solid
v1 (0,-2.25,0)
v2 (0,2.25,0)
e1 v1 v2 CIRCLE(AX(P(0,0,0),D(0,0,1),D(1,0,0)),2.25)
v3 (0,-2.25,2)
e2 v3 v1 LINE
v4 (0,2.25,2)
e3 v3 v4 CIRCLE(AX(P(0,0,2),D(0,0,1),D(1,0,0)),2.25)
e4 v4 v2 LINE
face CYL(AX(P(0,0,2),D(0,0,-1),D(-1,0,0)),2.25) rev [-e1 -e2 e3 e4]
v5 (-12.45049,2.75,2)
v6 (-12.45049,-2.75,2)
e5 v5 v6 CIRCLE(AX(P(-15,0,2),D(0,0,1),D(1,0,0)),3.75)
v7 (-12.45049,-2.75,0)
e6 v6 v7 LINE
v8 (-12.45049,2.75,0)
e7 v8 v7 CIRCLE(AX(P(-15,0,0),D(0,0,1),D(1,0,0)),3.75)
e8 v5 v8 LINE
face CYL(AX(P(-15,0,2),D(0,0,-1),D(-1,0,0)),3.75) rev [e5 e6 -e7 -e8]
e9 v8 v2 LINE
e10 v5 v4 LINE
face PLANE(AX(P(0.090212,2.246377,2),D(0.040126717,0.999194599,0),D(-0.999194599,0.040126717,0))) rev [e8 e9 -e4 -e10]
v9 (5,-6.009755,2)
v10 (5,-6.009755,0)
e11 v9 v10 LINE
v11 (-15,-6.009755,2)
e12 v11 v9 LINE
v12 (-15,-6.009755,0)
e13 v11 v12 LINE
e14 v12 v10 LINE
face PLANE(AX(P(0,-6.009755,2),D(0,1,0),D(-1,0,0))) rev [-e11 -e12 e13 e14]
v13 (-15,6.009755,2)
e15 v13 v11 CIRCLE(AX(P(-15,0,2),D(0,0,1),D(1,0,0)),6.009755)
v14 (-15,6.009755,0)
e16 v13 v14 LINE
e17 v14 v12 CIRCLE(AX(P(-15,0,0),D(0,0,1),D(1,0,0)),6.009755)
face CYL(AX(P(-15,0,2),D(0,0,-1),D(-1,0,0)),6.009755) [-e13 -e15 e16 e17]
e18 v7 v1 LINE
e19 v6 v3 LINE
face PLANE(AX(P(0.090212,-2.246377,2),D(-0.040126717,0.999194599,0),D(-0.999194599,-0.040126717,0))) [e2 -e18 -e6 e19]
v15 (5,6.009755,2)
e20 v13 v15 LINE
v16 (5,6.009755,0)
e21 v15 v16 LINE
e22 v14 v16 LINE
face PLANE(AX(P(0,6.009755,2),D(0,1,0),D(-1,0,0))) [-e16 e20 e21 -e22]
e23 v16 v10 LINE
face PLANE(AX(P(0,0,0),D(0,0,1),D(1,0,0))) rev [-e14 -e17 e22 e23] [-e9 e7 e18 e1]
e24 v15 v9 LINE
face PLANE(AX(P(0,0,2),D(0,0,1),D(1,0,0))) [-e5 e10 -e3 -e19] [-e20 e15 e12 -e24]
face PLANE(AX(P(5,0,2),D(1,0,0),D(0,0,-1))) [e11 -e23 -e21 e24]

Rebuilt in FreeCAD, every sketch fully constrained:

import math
import FreeCAD as App
import Part
import Sketcher
from FreeCAD import Vector

doc = App.newDocument("Part")
params = doc.addObject("Spreadsheet::Sheet", "Params")
for row, (alias, value) in enumerate([
    ("sketch1_width", "20 mm"),
    ("sketch1_radius", "3.75 mm"),
    ("sketch1_radius2", "2.25 mm"),
    ("pad1_length", "2 mm"),
], start=1):
    params.set(f"A{row}", alias)
    params.set(f"B{row}", "=" + value)
    params.setAlias(f"B{row}", alias)

body = doc.addObject("PartDesign::Body", "Body")

# Sketch on XY plane
sketch1 = body.newObject("Sketcher::SketchObject", "Sketch")
sketch1.AttachmentSupport = (doc.getObject("XY_Plane"), [""])
sketch1.MapMode = "FlatFace"
sketch1.addGeometry(Part.LineSegment(Vector(5, 6, 0), Vector(-15, 6, 0)), False)
sketch1.addGeometry(Part.ArcOfCircle(Part.Circle(Vector(-15, 0, 0), Vector(0, 0, 1), 6), math.radians(90), math.radians(270)), False)
sketch1.addGeometry(Part.LineSegment(Vector(-15, -6, 0), Vector(5, -6, 0)), False)
sketch1.addGeometry(Part.LineSegment(Vector(5, -6, 0), Vector(5, 6, 0)), False)
sketch1.addGeometry(Part.LineSegment(Vector(0, -2.2, 0), Vector(-12.5, -2.8, 0)), False)
sketch1.addGeometry(Part.ArcOfCircle(Part.Circle(Vector(-15, 0, 0), Vector(0, 0, 1), 3.8), math.radians(47), math.radians(313)), False)
sketch1.addGeometry(Part.LineSegment(Vector(-12.5, 2.8, 0), Vector(0, 2.2, 0)), False)
sketch1.addGeometry(Part.ArcOfCircle(Part.Circle(Vector(0, 0, 0), Vector(0, 0, 1), 2.2), math.radians(0), math.radians(90)), False)
sketch1.addGeometry(Part.ArcOfCircle(Part.Circle(Vector(0, 0, 0), Vector(0, 0, 1), 2.2), math.radians(-90), math.radians(0)), False)
sketch1.addConstraint(Sketcher.Constraint("Tangent", 0, 2, 1, 1))
sketch1.addConstraint(Sketcher.Constraint("Tangent", 1, 2, 2, 1))
sketch1.addConstraint(Sketcher.Constraint("Coincident", 2, 2, 3, 1))
sketch1.addConstraint(Sketcher.Constraint("Coincident", 3, 2, 0, 1))
sketch1.addConstraint(Sketcher.Constraint("Coincident", 4, 2, 5, 2))
sketch1.addConstraint(Sketcher.Constraint("Coincident", 5, 1, 6, 1))
sketch1.addConstraint(Sketcher.Constraint("Coincident", 6, 2, 7, 2))
sketch1.addConstraint(Sketcher.Constraint("Tangent", 7, 1, 8, 2))
sketch1.addConstraint(Sketcher.Constraint("Coincident", 8, 1, 4, 1))
sketch1.addConstraint(Sketcher.Constraint("Horizontal", 0))
sketch1.addConstraint(Sketcher.Constraint("Horizontal", 2))
sketch1.addConstraint(Sketcher.Constraint("Vertical", 3))
sketch1.addConstraint(Sketcher.Constraint("Coincident", 7, 3, -1, 1))
sketch1.addConstraint(Sketcher.Constraint("Coincident", 5, 3, 1, 3))
sketch1.addConstraint(Sketcher.Constraint("Equal", 7, 8))
sketch1.addConstraint(Sketcher.Constraint("Symmetric", 4, 2, 5, 1, -1))
sketch1.addConstraint(Sketcher.Constraint("PointOnObject", 6, 2, -2))
sketch1.addConstraint(Sketcher.Constraint("PointOnObject", 7, 1, -1))
sketch1.addConstraint(Sketcher.Constraint("PointOnObject", 8, 1, -2))
sketch1.addConstraint(Sketcher.Constraint("DistanceX", 0, 2, 0, 1, 20.0))
sketch1.addConstraint(Sketcher.Constraint("Radius", 5, 3.75))
sketch1.addConstraint(Sketcher.Constraint("Radius", 7, 2.25))
sketch1.addConstraint(Sketcher.Constraint("DistanceX", 1, 3, -1, 1, 15.0))
sketch1.addConstraint(Sketcher.Constraint("DistanceY", 4, 2, 5, 1, 5.5))
sketch1.addConstraint(Sketcher.Constraint("Radius", 1, 6.009755))
sketch1.setExpression("Constraints[19]", "Params.sketch1_width")
sketch1.setExpression("Constraints[20]", "Params.sketch1_radius")
sketch1.setExpression("Constraints[21]", "Params.sketch1_radius2")
pad1 = body.newObject("PartDesign::Pad", "Pad")
pad1.Profile = sketch1
pad1.setExpression("Length", "Params.pad1_length")

doc.recompute()
